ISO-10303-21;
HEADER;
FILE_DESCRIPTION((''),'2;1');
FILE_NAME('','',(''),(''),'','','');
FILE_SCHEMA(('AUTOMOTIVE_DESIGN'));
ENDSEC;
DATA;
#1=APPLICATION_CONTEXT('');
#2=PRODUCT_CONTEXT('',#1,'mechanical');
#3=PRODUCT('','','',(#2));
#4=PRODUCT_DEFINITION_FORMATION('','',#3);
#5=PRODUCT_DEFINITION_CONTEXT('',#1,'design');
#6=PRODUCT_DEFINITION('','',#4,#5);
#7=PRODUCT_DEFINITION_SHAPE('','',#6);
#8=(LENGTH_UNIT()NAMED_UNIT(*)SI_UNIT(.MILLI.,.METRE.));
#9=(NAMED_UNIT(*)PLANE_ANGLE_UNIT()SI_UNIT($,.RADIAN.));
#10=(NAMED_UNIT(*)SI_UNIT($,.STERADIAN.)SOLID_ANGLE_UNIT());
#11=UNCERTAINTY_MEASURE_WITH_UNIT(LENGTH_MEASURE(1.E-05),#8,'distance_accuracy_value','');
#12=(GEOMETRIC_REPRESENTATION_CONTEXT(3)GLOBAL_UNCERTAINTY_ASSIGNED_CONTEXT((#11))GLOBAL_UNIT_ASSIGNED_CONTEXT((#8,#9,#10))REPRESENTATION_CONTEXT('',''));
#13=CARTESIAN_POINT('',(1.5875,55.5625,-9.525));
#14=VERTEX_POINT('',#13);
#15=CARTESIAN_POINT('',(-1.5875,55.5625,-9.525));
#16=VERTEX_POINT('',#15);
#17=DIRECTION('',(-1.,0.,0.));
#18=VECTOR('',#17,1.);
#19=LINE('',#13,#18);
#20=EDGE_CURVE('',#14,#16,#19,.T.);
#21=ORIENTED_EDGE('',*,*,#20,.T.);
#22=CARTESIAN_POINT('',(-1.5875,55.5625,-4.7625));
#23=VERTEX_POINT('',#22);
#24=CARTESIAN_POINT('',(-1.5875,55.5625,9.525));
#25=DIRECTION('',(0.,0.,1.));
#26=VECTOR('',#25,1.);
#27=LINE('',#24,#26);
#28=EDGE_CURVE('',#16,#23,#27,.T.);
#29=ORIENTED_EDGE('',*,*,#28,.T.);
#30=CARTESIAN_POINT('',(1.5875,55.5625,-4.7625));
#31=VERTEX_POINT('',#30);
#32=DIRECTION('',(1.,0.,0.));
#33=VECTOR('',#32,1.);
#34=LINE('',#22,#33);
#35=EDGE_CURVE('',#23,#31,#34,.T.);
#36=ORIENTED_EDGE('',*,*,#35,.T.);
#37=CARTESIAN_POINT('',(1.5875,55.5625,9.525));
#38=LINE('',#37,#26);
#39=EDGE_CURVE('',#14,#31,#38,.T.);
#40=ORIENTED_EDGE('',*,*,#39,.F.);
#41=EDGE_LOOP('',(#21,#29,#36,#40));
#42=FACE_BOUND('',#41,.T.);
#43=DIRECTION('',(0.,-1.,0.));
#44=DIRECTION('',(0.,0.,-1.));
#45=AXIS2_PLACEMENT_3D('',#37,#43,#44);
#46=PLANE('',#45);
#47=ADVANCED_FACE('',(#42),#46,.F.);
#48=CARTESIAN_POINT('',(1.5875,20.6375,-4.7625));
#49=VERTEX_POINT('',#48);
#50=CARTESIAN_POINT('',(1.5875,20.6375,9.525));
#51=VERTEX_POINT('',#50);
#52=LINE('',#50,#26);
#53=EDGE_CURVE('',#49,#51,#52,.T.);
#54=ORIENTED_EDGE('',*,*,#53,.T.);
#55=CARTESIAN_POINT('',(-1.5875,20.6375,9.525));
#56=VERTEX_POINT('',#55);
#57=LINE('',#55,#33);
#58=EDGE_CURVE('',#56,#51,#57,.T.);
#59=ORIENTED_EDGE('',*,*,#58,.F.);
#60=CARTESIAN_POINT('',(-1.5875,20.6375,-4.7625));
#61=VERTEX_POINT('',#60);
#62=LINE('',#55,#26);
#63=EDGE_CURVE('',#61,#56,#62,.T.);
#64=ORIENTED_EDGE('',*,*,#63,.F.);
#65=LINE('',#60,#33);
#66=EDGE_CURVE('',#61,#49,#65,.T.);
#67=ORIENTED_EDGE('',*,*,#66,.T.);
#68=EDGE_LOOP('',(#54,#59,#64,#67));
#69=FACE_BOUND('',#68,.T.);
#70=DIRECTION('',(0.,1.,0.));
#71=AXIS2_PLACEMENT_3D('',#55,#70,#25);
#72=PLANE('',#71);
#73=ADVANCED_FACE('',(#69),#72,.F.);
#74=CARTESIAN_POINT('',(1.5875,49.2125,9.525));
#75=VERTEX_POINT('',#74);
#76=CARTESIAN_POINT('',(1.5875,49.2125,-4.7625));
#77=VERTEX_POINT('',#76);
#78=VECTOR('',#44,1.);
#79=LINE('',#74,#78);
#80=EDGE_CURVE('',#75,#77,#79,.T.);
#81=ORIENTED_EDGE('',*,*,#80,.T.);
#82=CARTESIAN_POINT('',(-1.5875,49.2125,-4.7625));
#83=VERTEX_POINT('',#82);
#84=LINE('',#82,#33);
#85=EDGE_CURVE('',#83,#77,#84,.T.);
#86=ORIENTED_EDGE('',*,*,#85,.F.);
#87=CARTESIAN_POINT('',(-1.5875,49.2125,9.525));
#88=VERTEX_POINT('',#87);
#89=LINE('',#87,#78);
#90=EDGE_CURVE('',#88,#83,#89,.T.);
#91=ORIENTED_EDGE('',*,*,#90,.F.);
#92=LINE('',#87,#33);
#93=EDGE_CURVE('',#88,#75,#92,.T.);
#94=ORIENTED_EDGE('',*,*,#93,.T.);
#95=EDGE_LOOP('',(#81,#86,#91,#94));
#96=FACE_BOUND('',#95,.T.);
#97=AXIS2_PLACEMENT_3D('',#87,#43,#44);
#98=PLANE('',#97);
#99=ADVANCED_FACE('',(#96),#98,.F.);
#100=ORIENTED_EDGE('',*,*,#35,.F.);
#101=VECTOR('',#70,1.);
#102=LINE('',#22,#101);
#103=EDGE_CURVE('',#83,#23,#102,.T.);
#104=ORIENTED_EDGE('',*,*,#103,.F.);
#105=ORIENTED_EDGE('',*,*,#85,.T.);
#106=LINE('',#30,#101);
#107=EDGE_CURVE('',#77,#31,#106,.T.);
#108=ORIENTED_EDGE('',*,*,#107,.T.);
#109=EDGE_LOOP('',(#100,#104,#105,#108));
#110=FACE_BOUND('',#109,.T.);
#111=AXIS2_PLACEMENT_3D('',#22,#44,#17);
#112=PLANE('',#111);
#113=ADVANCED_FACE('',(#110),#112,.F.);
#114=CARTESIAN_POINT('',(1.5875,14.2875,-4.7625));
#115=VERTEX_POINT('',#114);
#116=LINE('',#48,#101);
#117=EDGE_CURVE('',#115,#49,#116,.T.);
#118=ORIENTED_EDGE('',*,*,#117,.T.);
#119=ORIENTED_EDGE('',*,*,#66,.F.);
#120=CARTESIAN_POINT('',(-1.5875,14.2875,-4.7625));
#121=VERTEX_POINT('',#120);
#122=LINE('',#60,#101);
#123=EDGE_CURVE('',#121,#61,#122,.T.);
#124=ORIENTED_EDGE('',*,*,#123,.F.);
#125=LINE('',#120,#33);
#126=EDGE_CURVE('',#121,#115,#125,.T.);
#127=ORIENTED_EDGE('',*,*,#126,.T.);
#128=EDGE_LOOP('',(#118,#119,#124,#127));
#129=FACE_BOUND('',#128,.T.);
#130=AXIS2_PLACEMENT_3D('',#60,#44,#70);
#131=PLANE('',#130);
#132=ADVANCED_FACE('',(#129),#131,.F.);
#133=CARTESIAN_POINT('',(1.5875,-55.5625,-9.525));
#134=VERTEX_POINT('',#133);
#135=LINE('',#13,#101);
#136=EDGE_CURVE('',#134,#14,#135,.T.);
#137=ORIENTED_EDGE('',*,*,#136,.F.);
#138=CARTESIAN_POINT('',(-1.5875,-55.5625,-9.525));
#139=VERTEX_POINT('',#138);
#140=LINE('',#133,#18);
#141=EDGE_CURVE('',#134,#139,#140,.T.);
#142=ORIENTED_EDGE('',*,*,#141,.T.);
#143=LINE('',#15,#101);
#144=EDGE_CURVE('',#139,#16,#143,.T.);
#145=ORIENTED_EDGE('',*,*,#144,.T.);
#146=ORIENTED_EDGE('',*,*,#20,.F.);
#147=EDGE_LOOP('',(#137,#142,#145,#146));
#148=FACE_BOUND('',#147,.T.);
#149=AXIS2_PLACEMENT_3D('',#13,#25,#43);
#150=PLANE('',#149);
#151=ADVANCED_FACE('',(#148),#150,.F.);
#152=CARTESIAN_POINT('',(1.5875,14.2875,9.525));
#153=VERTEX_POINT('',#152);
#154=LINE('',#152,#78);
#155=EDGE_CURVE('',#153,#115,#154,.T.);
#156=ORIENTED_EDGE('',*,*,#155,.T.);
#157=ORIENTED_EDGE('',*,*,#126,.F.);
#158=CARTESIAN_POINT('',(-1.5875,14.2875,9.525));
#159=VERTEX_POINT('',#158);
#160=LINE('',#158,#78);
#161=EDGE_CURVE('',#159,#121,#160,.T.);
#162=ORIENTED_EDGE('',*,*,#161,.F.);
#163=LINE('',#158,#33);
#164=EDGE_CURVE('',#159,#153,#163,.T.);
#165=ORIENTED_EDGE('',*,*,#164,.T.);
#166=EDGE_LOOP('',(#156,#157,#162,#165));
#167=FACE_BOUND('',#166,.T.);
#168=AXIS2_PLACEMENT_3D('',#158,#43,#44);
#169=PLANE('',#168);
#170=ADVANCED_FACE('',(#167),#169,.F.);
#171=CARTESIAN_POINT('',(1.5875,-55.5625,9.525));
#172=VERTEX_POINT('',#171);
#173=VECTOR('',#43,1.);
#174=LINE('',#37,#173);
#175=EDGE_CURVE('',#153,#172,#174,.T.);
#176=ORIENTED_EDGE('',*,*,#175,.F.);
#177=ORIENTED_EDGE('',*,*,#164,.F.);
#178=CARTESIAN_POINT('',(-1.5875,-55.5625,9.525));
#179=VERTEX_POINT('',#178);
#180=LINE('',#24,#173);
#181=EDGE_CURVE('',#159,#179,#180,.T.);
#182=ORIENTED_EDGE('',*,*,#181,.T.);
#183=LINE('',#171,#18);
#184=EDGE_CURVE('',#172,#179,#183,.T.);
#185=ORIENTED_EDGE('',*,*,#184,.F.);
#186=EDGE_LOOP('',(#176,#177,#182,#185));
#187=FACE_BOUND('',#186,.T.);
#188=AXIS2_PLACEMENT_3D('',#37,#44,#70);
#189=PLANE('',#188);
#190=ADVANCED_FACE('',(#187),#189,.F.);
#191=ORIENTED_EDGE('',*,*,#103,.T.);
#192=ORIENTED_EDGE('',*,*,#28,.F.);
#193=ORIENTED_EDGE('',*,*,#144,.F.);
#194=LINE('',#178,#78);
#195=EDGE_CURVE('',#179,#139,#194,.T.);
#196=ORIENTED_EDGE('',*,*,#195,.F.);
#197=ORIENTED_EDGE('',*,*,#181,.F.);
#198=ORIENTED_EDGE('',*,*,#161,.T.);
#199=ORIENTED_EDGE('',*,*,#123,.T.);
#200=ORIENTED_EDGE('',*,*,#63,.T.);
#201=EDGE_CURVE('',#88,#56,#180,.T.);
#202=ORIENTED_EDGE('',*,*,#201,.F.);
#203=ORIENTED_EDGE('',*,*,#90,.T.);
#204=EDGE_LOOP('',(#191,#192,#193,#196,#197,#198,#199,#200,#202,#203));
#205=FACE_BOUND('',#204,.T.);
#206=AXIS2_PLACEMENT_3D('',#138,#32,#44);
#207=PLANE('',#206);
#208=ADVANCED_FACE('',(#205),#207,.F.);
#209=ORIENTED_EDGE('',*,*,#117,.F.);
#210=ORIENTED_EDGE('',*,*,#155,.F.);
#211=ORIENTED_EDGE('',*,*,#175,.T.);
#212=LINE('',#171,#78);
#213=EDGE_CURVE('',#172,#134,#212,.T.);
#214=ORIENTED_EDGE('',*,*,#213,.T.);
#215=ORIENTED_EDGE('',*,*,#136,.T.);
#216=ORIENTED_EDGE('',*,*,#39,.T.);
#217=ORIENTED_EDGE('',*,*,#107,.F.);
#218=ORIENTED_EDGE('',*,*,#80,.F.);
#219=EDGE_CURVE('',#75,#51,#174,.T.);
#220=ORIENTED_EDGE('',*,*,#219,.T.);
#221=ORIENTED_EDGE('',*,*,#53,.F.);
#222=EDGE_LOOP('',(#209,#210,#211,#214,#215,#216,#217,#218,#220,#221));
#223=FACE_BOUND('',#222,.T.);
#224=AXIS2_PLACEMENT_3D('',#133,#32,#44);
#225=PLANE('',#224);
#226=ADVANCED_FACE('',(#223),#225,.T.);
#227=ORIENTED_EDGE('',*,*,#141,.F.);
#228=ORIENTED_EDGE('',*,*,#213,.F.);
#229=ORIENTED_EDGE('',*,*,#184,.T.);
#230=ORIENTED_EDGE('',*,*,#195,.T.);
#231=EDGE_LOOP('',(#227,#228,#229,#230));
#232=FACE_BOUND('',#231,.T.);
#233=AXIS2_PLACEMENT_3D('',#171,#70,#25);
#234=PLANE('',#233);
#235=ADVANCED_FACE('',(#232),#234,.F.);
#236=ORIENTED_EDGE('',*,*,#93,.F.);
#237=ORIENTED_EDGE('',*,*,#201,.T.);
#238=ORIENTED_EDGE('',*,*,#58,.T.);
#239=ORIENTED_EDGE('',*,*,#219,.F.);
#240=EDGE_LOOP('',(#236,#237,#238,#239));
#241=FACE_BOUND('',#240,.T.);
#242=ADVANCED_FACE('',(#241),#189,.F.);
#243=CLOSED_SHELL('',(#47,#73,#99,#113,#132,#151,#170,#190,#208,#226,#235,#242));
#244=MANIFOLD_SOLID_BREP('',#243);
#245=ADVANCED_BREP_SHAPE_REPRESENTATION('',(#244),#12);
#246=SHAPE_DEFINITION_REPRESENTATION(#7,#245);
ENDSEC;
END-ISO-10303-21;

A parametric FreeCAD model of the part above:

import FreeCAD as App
import Part
import Sketcher
from FreeCAD import Vector
Q = App.Units.Quantity

doc = App.newDocument("Part")
params = doc.addObject("Spreadsheet::Sheet", "Params")
for row, (alias, value) in enumerate([
    ("sketch1_height", "0.75 in"),
    ("sketch1_width", "4.375 in"),
    ("pad1_length", "0.125 in"),
    ("sketch2_width", "0.25 in"),
    ("sketch2_height", "0.5625 in"),
], start=1):
    params.set(f"A{row}", alias)
    params.set(f"B{row}", "=" + value)
    params.setAlias(f"B{row}", alias)

body = doc.addObject("PartDesign::Body", "Body")

# Sketch on YZ plane
sketch1 = body.newObject("Sketcher::SketchObject", "Sketch")
sketch1.AttachmentSupport = (doc.getObject("YZ_Plane"), [""])
sketch1.MapMode = "FlatFace"
sketch1.addGeometry([
    Part.LineSegment(Vector(56, 10, 0), Vector(-56, 10, 0)),
    Part.LineSegment(Vector(-56, 10, 0), Vector(-56, -10, 0)),
    Part.LineSegment(Vector(-56, -10, 0), Vector(56, -10, 0)),
    Part.LineSegment(Vector(56, -10, 0), Vector(56, 10, 0)),
], False)
sketch1.addConstraint([
    Sketcher.Constraint("Coincident", 0, 2, 1, 1),
    Sketcher.Constraint("Coincident", 1, 2, 2, 1),
    Sketcher.Constraint("Coincident", 2, 2, 3, 1),
    Sketcher.Constraint("Coincident", 3, 2, 0, 1),
    Sketcher.Constraint("Horizontal", 0),
    Sketcher.Constraint("Vertical", 1),
    Sketcher.Constraint("Horizontal", 2),
    Sketcher.Constraint("Vertical", 3),
    Sketcher.Constraint("Symmetric", 0, 2, 2, 2, -1, 1),
    Sketcher.Constraint("DistanceY", 1, 2, 1, 1, Q("0.75 in")),
    Sketcher.Constraint("DistanceX", 0, 2, 0, 1, Q("4.375 in")),
])
sketch1.setExpression("Constraints[9]", "Params.sketch1_height")
sketch1.setExpression("Constraints[10]", "Params.sketch1_width")
pad1 = body.newObject("PartDesign::Pad", "Pad")
pad1.Profile = sketch1
pad1.setExpression("Length", "Params.pad1_length")
pad1.Midplane = True

# Sketch on YZ plane
sketch2 = body.newObject("Sketcher::SketchObject", "Sketch001")
sketch2.AttachmentSupport = (doc.getObject("YZ_Plane"), [""])
sketch2.MapMode = "FlatFace"
sketch2.AttachmentOffset = App.Placement(Vector(0, 0, 0.0625 * 25.4), App.Rotation())
sketch2.addGeometry([
    Part.LineSegment(Vector(56, 10, 0), Vector(49, 10, 0)),  # 0
    Part.LineSegment(Vector(49, 10, 0), Vector(49, -5, 0)),  # 1
    Part.LineSegment(Vector(49, -5, 0), Vector(56, -5, 0)),  # 2
    Part.LineSegment(Vector(56, -5, 0), Vector(56, 10, 0)),  # 3
    Part.LineSegment(Vector(21, 10, 0), Vector(14, 10, 0)),  # 4
    Part.LineSegment(Vector(14, 10, 0), Vector(14, -5, 0)),  # 5
    Part.LineSegment(Vector(14, -5, 0), Vector(21, -5, 0)),  # 6
    Part.LineSegment(Vector(21, -5, 0), Vector(21, 10, 0)),  # 7
], False)
sketch2.addConstraint([
    Sketcher.Constraint("Coincident", 0, 2, 1, 1),
    Sketcher.Constraint("Coincident", 1, 2, 2, 1),
    Sketcher.Constraint("Coincident", 2, 2, 3, 1),
    Sketcher.Constraint("Coincident", 3, 2, 0, 1),
    Sketcher.Constraint("Coincident", 4, 2, 5, 1),
    Sketcher.Constraint("Coincident", 5, 2, 6, 1),
    Sketcher.Constraint("Coincident", 6, 2, 7, 1),
    Sketcher.Constraint("Coincident", 7, 2, 4, 1),
    Sketcher.Constraint("Horizontal", 0),
    Sketcher.Constraint("Vertical", 1),
    Sketcher.Constraint("Horizontal", 2),
    Sketcher.Constraint("Vertical", 3),
    Sketcher.Constraint("Horizontal", 4),
    Sketcher.Constraint("Vertical", 5),
    Sketcher.Constraint("Horizontal", 6),
    Sketcher.Constraint("Vertical", 7),
    Sketcher.Constraint("Horizontal", 3, 2, 4, 2),
    Sketcher.Constraint("Horizontal", 2, 2, 5, 2),
    Sketcher.Constraint("Equal", 2, 4),
    Sketcher.Constraint("DistanceX", 0, 2, 0, 1, Q("0.25 in")),
    Sketcher.Constraint("DistanceY", 1, 2, 1, 1, Q("0.5625 in")),
    Sketcher.Constraint("DistanceX", -1, 1, 0, 2, Q("1.9375 in")),
    Sketcher.Constraint("DistanceY", -1, 1, 0, 2, Q("0.375 in")),
    Sketcher.Constraint("DistanceX", -1, 1, 4, 2, Q("0.5625 in")),
])
sketch2.setExpression("Constraints[19]", "Params.sketch2_width")
sketch2.setExpression("Constraints[20]", "Params.sketch2_height")
pocket1 = body.newObject("PartDesign::Pocket", "Pocket")
pocket1.Profile = sketch2
pocket1.Type = "ThroughAll"

doc.recompute()
